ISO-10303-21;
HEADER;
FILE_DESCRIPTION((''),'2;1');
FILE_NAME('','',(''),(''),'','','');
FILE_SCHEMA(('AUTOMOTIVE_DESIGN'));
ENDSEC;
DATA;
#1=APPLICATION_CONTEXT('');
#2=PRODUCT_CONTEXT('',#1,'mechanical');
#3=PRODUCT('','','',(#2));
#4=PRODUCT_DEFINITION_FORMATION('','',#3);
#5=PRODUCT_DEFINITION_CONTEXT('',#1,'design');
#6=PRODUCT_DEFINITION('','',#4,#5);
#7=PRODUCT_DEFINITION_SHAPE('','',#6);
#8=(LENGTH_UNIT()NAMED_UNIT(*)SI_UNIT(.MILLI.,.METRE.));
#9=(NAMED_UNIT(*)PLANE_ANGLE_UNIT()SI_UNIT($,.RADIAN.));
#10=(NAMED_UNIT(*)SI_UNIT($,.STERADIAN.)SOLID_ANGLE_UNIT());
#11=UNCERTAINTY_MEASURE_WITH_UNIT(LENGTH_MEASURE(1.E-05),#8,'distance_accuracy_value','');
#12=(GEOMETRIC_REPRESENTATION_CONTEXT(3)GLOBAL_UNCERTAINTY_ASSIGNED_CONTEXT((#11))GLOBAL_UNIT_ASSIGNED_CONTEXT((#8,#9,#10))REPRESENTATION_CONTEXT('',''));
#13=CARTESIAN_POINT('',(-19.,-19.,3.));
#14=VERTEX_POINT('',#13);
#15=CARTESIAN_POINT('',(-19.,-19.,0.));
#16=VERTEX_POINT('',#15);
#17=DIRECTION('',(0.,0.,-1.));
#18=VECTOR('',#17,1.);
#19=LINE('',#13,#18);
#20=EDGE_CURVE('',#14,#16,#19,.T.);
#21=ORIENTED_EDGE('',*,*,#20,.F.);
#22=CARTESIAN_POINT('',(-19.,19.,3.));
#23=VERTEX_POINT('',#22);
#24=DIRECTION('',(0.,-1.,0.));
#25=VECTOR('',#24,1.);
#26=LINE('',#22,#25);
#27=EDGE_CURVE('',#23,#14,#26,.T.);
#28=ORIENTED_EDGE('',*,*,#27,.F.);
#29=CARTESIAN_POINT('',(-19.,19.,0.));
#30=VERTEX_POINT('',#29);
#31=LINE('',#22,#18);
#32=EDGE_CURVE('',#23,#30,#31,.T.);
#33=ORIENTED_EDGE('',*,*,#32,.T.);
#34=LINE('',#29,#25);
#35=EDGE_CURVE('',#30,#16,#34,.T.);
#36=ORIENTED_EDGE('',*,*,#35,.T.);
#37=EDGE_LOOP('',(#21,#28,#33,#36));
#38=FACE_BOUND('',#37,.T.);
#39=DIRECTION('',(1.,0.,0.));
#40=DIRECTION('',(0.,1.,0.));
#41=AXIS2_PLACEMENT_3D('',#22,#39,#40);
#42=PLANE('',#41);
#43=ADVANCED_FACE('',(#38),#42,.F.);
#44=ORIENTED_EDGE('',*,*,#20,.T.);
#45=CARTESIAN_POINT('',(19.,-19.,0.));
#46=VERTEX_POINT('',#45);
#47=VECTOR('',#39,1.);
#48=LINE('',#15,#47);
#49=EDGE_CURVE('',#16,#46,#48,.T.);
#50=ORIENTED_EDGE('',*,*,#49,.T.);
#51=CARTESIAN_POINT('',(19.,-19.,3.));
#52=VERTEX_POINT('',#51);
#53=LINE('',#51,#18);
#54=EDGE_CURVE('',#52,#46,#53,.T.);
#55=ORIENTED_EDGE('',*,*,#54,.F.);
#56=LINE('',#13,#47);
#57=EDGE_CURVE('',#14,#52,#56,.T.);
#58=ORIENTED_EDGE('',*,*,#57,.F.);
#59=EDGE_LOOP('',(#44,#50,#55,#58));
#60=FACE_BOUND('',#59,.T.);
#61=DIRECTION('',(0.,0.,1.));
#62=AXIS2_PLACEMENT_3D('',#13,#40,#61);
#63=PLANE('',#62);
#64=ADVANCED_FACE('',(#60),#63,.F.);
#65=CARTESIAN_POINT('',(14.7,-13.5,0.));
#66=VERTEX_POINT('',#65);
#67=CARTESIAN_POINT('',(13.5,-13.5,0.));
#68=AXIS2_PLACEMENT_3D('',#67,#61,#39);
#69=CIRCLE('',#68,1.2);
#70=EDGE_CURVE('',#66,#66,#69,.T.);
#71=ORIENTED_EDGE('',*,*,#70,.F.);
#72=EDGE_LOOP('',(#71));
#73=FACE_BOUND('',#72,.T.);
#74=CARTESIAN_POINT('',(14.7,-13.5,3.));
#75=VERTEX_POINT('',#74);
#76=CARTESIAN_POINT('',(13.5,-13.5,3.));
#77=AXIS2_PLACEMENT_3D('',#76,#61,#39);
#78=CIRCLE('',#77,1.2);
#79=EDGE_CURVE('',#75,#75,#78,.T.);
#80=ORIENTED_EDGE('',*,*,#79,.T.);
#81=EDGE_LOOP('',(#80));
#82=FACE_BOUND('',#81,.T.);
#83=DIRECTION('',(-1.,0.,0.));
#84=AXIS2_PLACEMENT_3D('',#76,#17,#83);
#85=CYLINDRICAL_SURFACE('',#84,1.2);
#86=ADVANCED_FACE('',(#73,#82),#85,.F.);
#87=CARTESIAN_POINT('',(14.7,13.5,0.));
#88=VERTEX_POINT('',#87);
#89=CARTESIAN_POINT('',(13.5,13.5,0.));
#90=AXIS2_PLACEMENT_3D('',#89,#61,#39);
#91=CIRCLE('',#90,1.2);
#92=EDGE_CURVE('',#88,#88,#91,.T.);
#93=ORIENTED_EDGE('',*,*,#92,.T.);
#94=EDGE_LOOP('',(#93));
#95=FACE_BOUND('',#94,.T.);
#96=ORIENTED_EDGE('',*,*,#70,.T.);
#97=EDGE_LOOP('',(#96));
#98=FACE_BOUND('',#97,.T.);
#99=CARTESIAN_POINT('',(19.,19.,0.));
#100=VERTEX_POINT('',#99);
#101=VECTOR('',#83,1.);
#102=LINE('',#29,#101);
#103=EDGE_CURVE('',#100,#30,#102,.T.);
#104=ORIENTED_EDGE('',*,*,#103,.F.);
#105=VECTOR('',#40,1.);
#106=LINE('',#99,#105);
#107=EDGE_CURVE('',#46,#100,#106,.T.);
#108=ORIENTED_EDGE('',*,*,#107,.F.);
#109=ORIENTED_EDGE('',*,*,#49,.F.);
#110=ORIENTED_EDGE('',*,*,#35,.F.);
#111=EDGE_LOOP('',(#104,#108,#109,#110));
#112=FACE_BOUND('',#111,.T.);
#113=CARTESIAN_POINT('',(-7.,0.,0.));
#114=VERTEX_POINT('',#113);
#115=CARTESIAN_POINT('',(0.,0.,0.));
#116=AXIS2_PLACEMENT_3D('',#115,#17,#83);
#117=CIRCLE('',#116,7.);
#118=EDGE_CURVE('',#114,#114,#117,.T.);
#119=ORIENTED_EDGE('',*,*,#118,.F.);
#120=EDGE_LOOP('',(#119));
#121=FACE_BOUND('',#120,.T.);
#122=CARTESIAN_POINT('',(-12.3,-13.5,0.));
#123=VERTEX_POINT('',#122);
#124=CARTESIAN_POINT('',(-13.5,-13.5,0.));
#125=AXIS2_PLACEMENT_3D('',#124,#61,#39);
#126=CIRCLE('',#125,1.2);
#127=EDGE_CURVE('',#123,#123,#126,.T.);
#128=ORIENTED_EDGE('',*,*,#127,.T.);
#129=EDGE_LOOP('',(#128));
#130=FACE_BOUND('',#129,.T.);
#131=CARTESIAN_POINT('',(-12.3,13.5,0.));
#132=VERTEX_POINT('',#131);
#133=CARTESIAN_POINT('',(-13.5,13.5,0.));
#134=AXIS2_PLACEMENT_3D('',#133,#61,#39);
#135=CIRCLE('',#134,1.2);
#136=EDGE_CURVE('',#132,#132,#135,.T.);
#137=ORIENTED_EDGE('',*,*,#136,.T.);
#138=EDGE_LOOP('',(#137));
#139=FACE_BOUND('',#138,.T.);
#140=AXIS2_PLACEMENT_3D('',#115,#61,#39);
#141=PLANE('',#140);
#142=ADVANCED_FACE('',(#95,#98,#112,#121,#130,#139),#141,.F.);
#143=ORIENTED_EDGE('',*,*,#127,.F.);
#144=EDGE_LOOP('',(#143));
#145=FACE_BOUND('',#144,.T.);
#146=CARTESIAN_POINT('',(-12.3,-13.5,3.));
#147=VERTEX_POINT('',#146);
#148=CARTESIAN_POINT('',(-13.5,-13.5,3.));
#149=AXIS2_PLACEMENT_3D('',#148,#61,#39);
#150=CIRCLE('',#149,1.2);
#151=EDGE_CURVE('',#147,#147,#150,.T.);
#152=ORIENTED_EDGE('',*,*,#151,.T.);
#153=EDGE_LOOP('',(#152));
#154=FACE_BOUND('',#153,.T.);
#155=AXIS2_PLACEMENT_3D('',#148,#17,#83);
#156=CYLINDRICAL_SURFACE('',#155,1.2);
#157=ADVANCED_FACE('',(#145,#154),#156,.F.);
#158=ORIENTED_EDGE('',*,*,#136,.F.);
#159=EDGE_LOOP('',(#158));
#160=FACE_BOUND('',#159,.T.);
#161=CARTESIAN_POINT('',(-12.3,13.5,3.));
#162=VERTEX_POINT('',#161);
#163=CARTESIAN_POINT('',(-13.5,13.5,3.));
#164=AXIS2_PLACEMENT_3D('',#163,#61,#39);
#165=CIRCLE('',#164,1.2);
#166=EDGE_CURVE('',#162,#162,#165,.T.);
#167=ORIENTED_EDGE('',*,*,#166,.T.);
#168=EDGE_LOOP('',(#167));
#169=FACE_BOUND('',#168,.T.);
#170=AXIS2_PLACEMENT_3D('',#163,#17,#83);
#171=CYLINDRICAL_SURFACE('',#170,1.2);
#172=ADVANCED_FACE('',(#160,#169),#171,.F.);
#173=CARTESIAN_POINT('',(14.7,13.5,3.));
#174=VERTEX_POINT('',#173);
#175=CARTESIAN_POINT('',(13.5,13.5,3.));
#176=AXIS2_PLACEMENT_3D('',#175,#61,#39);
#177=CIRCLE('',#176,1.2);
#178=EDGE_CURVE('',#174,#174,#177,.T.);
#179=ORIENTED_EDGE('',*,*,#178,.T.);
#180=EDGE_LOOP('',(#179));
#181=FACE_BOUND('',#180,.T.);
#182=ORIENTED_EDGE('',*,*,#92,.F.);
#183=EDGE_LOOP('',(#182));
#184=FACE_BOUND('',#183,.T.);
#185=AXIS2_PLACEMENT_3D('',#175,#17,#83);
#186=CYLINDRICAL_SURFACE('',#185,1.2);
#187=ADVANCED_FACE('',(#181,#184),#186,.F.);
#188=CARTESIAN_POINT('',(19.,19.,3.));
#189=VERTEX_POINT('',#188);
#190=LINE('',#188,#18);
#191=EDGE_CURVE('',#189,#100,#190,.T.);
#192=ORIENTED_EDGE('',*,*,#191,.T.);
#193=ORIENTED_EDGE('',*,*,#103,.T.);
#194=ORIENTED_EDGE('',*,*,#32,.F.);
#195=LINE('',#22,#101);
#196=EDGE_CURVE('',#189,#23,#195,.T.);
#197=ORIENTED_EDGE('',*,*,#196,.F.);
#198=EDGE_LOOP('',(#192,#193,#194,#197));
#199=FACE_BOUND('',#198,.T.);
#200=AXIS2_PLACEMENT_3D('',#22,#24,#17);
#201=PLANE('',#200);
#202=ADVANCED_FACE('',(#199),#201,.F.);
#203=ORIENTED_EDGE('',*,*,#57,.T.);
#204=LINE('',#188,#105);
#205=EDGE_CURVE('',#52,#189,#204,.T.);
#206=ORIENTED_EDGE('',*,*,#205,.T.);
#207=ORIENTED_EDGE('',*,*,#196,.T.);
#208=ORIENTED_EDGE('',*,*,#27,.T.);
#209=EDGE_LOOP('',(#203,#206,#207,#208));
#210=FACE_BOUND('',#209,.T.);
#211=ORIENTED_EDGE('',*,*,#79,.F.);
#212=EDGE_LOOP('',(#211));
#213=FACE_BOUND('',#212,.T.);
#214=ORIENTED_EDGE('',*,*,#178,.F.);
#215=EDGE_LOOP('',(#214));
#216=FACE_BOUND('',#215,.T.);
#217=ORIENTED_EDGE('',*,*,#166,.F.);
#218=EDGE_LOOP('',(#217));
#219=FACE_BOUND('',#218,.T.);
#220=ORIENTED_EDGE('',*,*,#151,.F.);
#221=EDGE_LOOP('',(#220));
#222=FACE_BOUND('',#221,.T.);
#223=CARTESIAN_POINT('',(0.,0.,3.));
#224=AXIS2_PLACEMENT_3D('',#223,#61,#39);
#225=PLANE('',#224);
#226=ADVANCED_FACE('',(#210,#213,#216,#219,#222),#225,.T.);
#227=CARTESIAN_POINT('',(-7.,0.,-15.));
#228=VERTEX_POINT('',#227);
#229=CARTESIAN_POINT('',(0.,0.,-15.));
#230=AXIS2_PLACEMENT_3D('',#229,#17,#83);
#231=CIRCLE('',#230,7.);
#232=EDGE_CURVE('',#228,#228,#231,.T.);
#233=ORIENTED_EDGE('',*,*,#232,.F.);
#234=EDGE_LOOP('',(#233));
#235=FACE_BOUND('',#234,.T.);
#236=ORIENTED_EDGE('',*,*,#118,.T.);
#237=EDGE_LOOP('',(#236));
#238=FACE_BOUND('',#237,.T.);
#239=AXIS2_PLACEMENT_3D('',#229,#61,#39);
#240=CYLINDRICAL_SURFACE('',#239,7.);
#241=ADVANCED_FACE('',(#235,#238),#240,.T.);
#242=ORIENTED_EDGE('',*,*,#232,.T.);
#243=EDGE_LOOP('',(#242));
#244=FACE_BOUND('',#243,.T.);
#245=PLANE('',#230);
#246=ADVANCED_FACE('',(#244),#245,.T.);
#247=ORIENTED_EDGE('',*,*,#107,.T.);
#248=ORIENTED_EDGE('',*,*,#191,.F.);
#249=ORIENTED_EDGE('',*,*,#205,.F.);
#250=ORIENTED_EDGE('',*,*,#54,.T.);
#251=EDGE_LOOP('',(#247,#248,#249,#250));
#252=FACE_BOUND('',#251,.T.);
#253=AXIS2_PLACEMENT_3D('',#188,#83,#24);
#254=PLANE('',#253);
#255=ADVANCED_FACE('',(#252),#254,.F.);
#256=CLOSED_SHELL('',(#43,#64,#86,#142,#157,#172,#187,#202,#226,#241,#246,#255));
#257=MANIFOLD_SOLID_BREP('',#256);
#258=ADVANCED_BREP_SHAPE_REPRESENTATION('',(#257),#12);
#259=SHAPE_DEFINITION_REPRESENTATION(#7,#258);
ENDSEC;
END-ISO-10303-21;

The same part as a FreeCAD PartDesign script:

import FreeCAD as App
import Part
import Sketcher
from FreeCAD import Vector

doc = App.newDocument("Part")
params = doc.addObject("Spreadsheet::Sheet", "Params")
for row, (alias, value) in enumerate([
    ("sketch1_diameter", "2.4 mm"),
    ("sketch1_width", "38 mm"),
    ("pad1_length", "3 mm"),
    ("sketch2_diameter", "14 mm"),
    ("pad2_length", "15 mm"),
], start=1):
    params.set(f"A{row}", alias)
    params.set(f"B{row}", "=" + value)
    params.setAlias(f"B{row}", alias)

body = doc.addObject("PartDesign::Body", "Body")

# Sketch on XY plane
sketch1 = doc.addObject("Sketcher::SketchObject", "Sketch")
body.addObject(sketch1)
sketch1.AttachmentSupport = (doc.XY_Plane, [""])
sketch1.MapMode = "FlatFace"
sketch1.addGeometry([
    Part.LineSegment(Vector(-19, 19, 0), Vector(-19, -19, 0)),  # 0
    Part.LineSegment(Vector(-19, -19, 0), Vector(19, -19, 0)),  # 1
    Part.LineSegment(Vector(19, -19, 0), Vector(19, 19, 0)),  # 2
    Part.LineSegment(Vector(19, 19, 0), Vector(-19, 19, 0)),  # 3
    Part.Circle(Vector(-13.5, -13.5, 0), Vector(0, 0, 1), 1.2),  # 4
    Part.Circle(Vector(13.5, -13.5, 0), Vector(0, 0, 1), 1.2),  # 5
    Part.Circle(Vector(-13.5, 13.5, 0), Vector(0, 0, 1), 1.2),  # 6
    Part.Circle(Vector(13.5, 13.5, 0), Vector(0, 0, 1), 1.2),  # 7
], False)
sketch1.addConstraint([
    Sketcher.Constraint("Coincident", 0, 2, 1, 1),
    Sketcher.Constraint("Coincident", 1, 2, 2, 1),
    Sketcher.Constraint("Coincident", 2, 2, 3, 1),
    Sketcher.Constraint("Coincident", 3, 2, 0, 1),
    Sketcher.Constraint("Vertical", 0),
    Sketcher.Constraint("Horizontal", 1),
    Sketcher.Constraint("Vertical", 2),
    Sketcher.Constraint("Horizontal", 3),
    Sketcher.Constraint("Equal", 4, 5),
    Sketcher.Constraint("Equal", 5, 6),
    Sketcher.Constraint("Equal", 6, 7),
    Sketcher.Constraint("Symmetric", 5, 3, 6, 3, -1, 1),
    Sketcher.Constraint("Symmetric", 4, 3, 7, 3, -1, 1),
    Sketcher.Constraint("Symmetric", 0, 2, 2, 2, -1, 1),
    Sketcher.Constraint("Symmetric", 4, 3, 5, 3, -2),
    Sketcher.Constraint("Equal", 3, 0),
    Sketcher.Constraint("Diameter", 4, 2.4),
    Sketcher.Constraint("DistanceX", 1, 1, 1, 2, 38.0),
    Sketcher.Constraint("DistanceX", 4, 3, 5, 3, 27.0),
    Sketcher.Constraint("DistanceY", 4, 3, 6, 3, 27.0),
])
sketch1.setExpression("Constraints[16]", "Params.sketch1_diameter")
sketch1.setExpression("Constraints[17]", "Params.sketch1_width")
pad1 = doc.addObject("PartDesign::Pad", "Pad")
body.addObject(pad1)
pad1.Profile = sketch1
pad1.setExpression("Length", "Params.pad1_length")

# Sketch on XY plane
sketch2 = doc.addObject("Sketcher::SketchObject", "Sketch001")
body.addObject(sketch2)
sketch2.AttachmentSupport = (doc.XY_Plane, [""])
sketch2.MapMode = "FlatFace"
sketch2.addGeometry(Part.Circle(Vector(0, 0, 0), Vector(0, 0, 1), 7), False)
sketch2.addConstraint([
    Sketcher.Constraint("Coincident", 0, 3, -1, 1),
    Sketcher.Constraint("Diameter", 0, 14.0),
])
sketch2.setExpression("Constraints[1]", "Params.sketch2_diameter")
pad2 = doc.addObject("PartDesign::Pad", "Pad001")
body.addObject(pad2)
pad2.Profile = sketch2
pad2.setExpression("Length", "Params.pad2_length")
pad2.Reversed = True

doc.recompute()
